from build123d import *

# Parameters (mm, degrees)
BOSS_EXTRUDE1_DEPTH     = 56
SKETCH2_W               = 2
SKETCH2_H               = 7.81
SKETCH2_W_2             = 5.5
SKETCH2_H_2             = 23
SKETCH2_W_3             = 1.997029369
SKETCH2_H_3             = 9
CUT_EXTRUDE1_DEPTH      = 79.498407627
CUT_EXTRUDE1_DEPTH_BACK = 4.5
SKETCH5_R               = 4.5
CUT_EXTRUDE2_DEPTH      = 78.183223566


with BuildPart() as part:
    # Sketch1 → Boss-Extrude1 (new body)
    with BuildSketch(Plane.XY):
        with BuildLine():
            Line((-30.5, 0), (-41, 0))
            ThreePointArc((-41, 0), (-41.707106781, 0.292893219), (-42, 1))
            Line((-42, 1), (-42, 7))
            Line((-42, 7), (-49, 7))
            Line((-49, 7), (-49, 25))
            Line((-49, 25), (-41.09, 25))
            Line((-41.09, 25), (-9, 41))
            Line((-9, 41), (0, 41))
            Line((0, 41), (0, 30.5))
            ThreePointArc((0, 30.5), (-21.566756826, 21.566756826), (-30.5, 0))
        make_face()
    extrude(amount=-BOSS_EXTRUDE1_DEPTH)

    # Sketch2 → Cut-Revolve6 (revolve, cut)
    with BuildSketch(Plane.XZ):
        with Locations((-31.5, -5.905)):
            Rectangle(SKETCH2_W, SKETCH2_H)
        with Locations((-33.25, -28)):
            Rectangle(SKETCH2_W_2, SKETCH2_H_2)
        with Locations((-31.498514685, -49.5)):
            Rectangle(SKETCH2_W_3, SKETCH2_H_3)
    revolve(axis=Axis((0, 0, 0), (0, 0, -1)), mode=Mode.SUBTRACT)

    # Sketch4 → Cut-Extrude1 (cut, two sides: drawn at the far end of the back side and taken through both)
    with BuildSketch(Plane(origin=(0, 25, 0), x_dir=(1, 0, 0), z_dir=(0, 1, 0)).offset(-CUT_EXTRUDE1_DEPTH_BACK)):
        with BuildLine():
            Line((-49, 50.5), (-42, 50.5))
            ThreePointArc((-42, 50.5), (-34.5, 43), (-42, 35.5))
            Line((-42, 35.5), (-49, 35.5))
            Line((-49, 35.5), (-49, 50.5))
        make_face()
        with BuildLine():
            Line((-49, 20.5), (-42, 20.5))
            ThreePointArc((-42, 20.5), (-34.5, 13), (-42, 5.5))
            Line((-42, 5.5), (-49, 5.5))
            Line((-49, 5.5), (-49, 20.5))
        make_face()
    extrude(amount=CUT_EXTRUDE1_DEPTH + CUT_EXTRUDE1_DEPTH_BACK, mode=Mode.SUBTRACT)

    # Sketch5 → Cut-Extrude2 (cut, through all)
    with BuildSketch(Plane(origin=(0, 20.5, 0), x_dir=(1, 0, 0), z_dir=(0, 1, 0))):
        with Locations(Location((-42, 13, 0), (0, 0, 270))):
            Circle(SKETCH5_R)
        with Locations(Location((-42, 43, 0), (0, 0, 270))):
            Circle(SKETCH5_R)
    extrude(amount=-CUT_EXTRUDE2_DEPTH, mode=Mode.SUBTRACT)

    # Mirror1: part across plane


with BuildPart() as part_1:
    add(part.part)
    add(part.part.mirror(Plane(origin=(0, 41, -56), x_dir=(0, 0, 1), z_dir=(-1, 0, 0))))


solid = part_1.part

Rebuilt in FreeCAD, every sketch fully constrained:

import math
import FreeCAD as App
import Part
import Sketcher
from FreeCAD import Vector


def add_polygon(sketch, points):
    """Adds a closed chain of lines whose ends are joined by coincident constraints."""
    first, n = sketch.GeometryCount, len(points)
    for a, b in zip(points, points[1:] + points[:1]):
        sketch.addGeometry(Part.LineSegment(App.Vector(*a, 0), App.Vector(*b, 0)), False)
    for i in range(n):
        sketch.addConstraint(Sketcher.Constraint("Coincident", first + i, 2, first + (i + 1) % n, 1))

doc = App.newDocument("Part")
body = doc.addObject("PartDesign::Body", "Body")

# Sketch on XY plane
sketch1 = doc.addObject("Sketcher::SketchObject", "Sketch")
body.addObject(sketch1)
sketch1.AttachmentSupport = (doc.XY_Plane, [""])
sketch1.MapMode = "FlatFace"
sketch1.addGeometry(Part.LineSegment(Vector(-41, 0, 0), Vector(-30.5, 0, 0)), False)
sketch1.addGeometry(Part.ArcOfCircle(Part.Circle(Vector(0, 0, 0), Vector(0, 0, 1), 30.5), math.radians(90), math.radians(180)), False)
sketch1.addGeometry(Part.LineSegment(Vector(0, 30.5, 0), Vector(0, 41, 0)), False)
sketch1.addGeometry(Part.LineSegment(Vector(0, 41, 0), Vector(-9, 41, 0)), False)
sketch1.addGeometry(Part.LineSegment(Vector(-9, 41, 0), Vector(-41.1, 25, 0)), False)
sketch1.addGeometry(Part.LineSegment(Vector(-41.1, 25, 0), Vector(-49, 25, 0)), False)
sketch1.addGeometry(Part.LineSegment(Vector(-49, 25, 0), Vector(-49, 7, 0)), False)
sketch1.addGeometry(Part.LineSegment(Vector(-49, 7, 0), Vector(-42, 7, 0)), False)
sketch1.addGeometry(Part.LineSegment(Vector(-42, 7, 0), Vector(-42, 1, 0)), False)
sketch1.addGeometry(Part.ArcOfCircle(Part.Circle(Vector(-41, 1, 0), Vector(0, 0, 1), 1), math.radians(-180), math.radians(-90)), False)
sketch1.addConstraint(Sketcher.Constraint("Coincident", 0, 2, 1, 2))
sketch1.addConstraint(Sketcher.Constraint("Coincident", 1, 1, 2, 1))
sketch1.addConstraint(Sketcher.Constraint("Coincident", 2, 2, 3, 1))
sketch1.addConstraint(Sketcher.Constraint("Coincident", 3, 2, 4, 1))
sketch1.addConstraint(Sketcher.Constraint("Coincident", 4, 2, 5, 1))
sketch1.addConstraint(Sketcher.Constraint("Coincident", 5, 2, 6, 1))
sketch1.addConstraint(Sketcher.Constraint("Coincident", 6, 2, 7, 1))
sketch1.addConstraint(Sketcher.Constraint("Coincident", 7, 2, 8, 1))
sketch1.addConstraint(Sketcher.Constraint("Tangent", 8, 2, 9, 1))
sketch1.addConstraint(Sketcher.Constraint("Tangent", 9, 2, 0, 1))
sketch1.addConstraint(Sketcher.Constraint("Horizontal", 0))
sketch1.addConstraint(Sketcher.Constraint("Vertical", 2))
sketch1.addConstraint(Sketcher.Constraint("Horizontal", 3))
sketch1.addConstraint(Sketcher.Constraint("Horizontal", 5))
sketch1.addConstraint(Sketcher.Constraint("Vertical", 6))
sketch1.addConstraint(Sketcher.Constraint("Horizontal", 7))
sketch1.addConstraint(Sketcher.Constraint("Vertical", 8))
sketch1.addConstraint(Sketcher.Constraint("Coincident", 1, 3, -1, 1))
sketch1.addConstraint(Sketcher.Constraint("PointOnObject", 0, 2, -1))
sketch1.addConstraint(Sketcher.Constraint("PointOnObject", 1, 1, -2))
sketch1.addConstraint(Sketcher.Constraint("Equal", 0, 2))
sketch1.addConstraint(Sketcher.Constraint("Radius", 9, 1.0))
sketch1.addConstraint(Sketcher.Constraint("Radius", 1, 30.5))
sketch1.addConstraint(Sketcher.Constraint("DistanceX", 3, 2, 3, 1, 9.0))
sketch1.addConstraint(Sketcher.Constraint("DistanceX", 7, 1, 7, 2, 7.0))
sketch1.addConstraint(Sketcher.Constraint("DistanceY", 6, 2, 6, 1, 18.0))
sketch1.addConstraint(Sketcher.Constraint("DistanceY", 8, 2, 8, 1, 6.0))
sketch1.addConstraint(Sketcher.Constraint("DistanceX", 0, 1, 0, 2, 10.5))
sketch1.addConstraint(Sketcher.Constraint("DistanceX", 5, 2, 5, 1, 7.91))
pad1 = doc.addObject("PartDesign::Pad", "Pad")
body.addObject(pad1)
pad1.Profile = sketch1
pad1.Length = 56
pad1.Reversed = True

# Sketch on XZ plane
sketch2 = doc.addObject("Sketcher::SketchObject", "Sketch001")
body.addObject(sketch2)
sketch2.AttachmentSupport = (doc.XZ_Plane, [""])
sketch2.MapMode = "FlatFace"
add_polygon(sketch2, [(-32.5, -2), (-32.5, -9.8), (-30.5, -9.8), (-30.5, -2)])  # lines 0-3
add_polygon(sketch2, [(-36, -16.5), (-36, -39.5), (-30.5, -39.5), (-30.5, -16.5)])  # lines 4-7
add_polygon(sketch2, [(-32.5, -45), (-32.5, -54), (-30.5, -54), (-30.5, -45)])  # lines 8-11
sketch2.addConstraint(Sketcher.Constraint("Vertical", 0))
sketch2.addConstraint(Sketcher.Constraint("Horizontal", 1))
sketch2.addConstraint(Sketcher.Constraint("Vertical", 2))
sketch2.addConstraint(Sketcher.Constraint("Horizontal", 3))
sketch2.addConstraint(Sketcher.Constraint("Vertical", 4))
sketch2.addConstraint(Sketcher.Constraint("Horizontal", 5))
sketch2.addConstraint(Sketcher.Constraint("Vertical", 6))
sketch2.addConstraint(Sketcher.Constraint("Horizontal", 7))
sketch2.addConstraint(Sketcher.Constraint("Vertical", 8))
sketch2.addConstraint(Sketcher.Constraint("Horizontal", 9))
sketch2.addConstraint(Sketcher.Constraint("Vertical", 10))
sketch2.addConstraint(Sketcher.Constraint("Horizontal", 11))
sketch2.addConstraint(Sketcher.Constraint("Vertical", 2, 2, 5, 2))
sketch2.addConstraint(Sketcher.Constraint("Vertical", 6, 2, 9, 2))
sketch2.addConstraint(Sketcher.Constraint("DistanceX", 1, 1, 1, 2, 2.0))
sketch2.addConstraint(Sketcher.Constraint("DistanceY", 4, 2, 4, 1, 23.0))
sketch2.addConstraint(Sketcher.Constraint("DistanceY", 8, 2, 8, 1, 9.0))
sketch2.addConstraint(Sketcher.Constraint("DistanceX", 5, 1, 5, 2, 5.5))
sketch2.addConstraint(Sketcher.Constraint("DistanceY", 2, 2, -1, 1, 2.0))
sketch2.addConstraint(Sketcher.Constraint("DistanceX", 4, 2, -1, 1, 36.0))
sketch2.addConstraint(Sketcher.Constraint("DistanceY", 8, 2, -1, 1, 54.0))
sketch2.addConstraint(Sketcher.Constraint("DistanceY", 0, 2, 0, 1, 7.81))
sketch2.addConstraint(Sketcher.Constraint("DistanceY", 4, 2, -1, 1, 39.5))
sketch2.addConstraint(Sketcher.Constraint("DistanceX", 9, 1, 9, 2, 1.997029))
groove = doc.addObject("PartDesign::Groove", "Groove")
body.addObject(groove)
groove.Profile = sketch2
groove.ReferenceAxis = (sketch2, ["V_Axis"])
groove.Angle = 360

# Sketch on XZ plane
sketch3 = doc.addObject("Sketcher::SketchObject", "Sketch002")
body.addObject(sketch3)
sketch3.AttachmentSupport = (doc.XZ_Plane, [""])
sketch3.MapMode = "FlatFace"
sketch3.AttachmentOffset = App.Placement(Vector(0, 0, -25), App.Rotation())
sketch3.addGeometry(Part.LineSegment(Vector(-42, -50, 0), Vector(-49, -50, 0)), False)
sketch3.addGeometry(Part.LineSegment(Vector(-49, -50, 0), Vector(-49, -36, 0)), False)
sketch3.addGeometry(Part.LineSegment(Vector(-49, -36, 0), Vector(-42, -36, 0)), False)
sketch3.addGeometry(Part.ArcOfCircle(Part.Circle(Vector(-42, -43, 0), Vector(0, 0, 1), 8), math.radians(-90), math.radians(90)), False)
sketch3.addGeometry(Part.LineSegment(Vector(-42, -20, 0), Vector(-49, -20, 0)), False)
sketch3.addGeometry(Part.LineSegment(Vector(-49, -20, 0), Vector(-49, -6, 0)), False)
sketch3.addGeometry(Part.LineSegment(Vector(-49, -6, 0), Vector(-42, -6, 0)), False)
sketch3.addGeometry(Part.ArcOfCircle(Part.Circle(Vector(-42, -13, 0), Vector(0, 0, 1), 8), math.radians(-90), math.radians(90)), False)
sketch3.addConstraint(Sketcher.Constraint("Coincident", 0, 2, 1, 1))
sketch3.addConstraint(Sketcher.Constraint("Coincident", 1, 2, 2, 1))
sketch3.addConstraint(Sketcher.Constraint("Tangent", 2, 2, 3, 2))
sketch3.addConstraint(Sketcher.Constraint("Tangent", 3, 1, 0, 1))
sketch3.addConstraint(Sketcher.Constraint("Coincident", 4, 2, 5, 1))
sketch3.addConstraint(Sketcher.Constraint("Coincident", 5, 2, 6, 1))
sketch3.addConstraint(Sketcher.Constraint("Tangent", 6, 2, 7, 2))
sketch3.addConstraint(Sketcher.Constraint("Tangent", 7, 1, 4, 1))
sketch3.addConstraint(Sketcher.Constraint("Horizontal", 0))
sketch3.addConstraint(Sketcher.Constraint("Vertical", 1))
sketch3.addConstraint(Sketcher.Constraint("Horizontal", 2))
sketch3.addConstraint(Sketcher.Constraint("Horizontal", 4))
sketch3.addConstraint(Sketcher.Constraint("Vertical", 5))
sketch3.addConstraint(Sketcher.Constraint("Horizontal", 6))
sketch3.addConstraint(Sketcher.Constraint("Equal", 3, 7))
sketch3.addConstraint(Sketcher.Constraint("Vertical", 3, 3, 7, 3))
sketch3.addConstraint(Sketcher.Constraint("Vertical", 1, 2, 4, 2))
sketch3.addConstraint(Sketcher.Constraint("Radius", 3, 7.5))
sketch3.addConstraint(Sketcher.Constraint("DistanceX", 0, 2, 0, 1, 7.0))
sketch3.addConstraint(Sketcher.Constraint("DistanceX", 3, 3, -1, 1, 42.0))
sketch3.addConstraint(Sketcher.Constraint("DistanceY", 3, 3, -1, 1, 43.0))
sketch3.addConstraint(Sketcher.Constraint("DistanceY", 7, 3, -1, 1, 13.0))
pocket1 = doc.addObject("PartDesign::Pocket", "Pocket")
body.addObject(pocket1)
pocket1.Profile = sketch3
pocket1.Type = "TwoLengths"
pocket1.Length = 79.498408
pocket1.Length2 = 4.5

# Sketch on XZ plane
sketch4 = doc.addObject("Sketcher::SketchObject", "Sketch003")
body.addObject(sketch4)
sketch4.AttachmentSupport = (doc.XZ_Plane, [""])
sketch4.MapMode = "FlatFace"
sketch4.AttachmentOffset = App.Placement(Vector(0, 0, -20.5), App.Rotation())
sketch4.addGeometry(Part.Circle(Vector(-42, -13, 0), Vector(0, 0, 1), 4.5), False)
sketch4.addGeometry(Part.Circle(Vector(-42, -43, 0), Vector(0, 0, 1), 4.5), False)
sketch4.addConstraint(Sketcher.Constraint("Equal", 0, 1))
sketch4.addConstraint(Sketcher.Constraint("Vertical", 0, 3, 1, 3))
sketch4.addConstraint(Sketcher.Constraint("Diameter", 0, 9.0))
sketch4.addConstraint(Sketcher.Constraint("DistanceX", 0, 3, -1, 1, 42.0))
sketch4.addConstraint(Sketcher.Constraint("DistanceY", 0, 3, -1, 1, 13.0))
sketch4.addConstraint(Sketcher.Constraint("DistanceY", 1, 3, -1, 1, 43.0))
pocket2 = doc.addObject("PartDesign::Pocket", "Pocket001")
body.addObject(pocket2)
pocket2.Profile = sketch4
pocket2.Type = "ThroughAll"
pocket2.Reversed = True
body2 = doc.addObject("PartDesign::Body", "Body001")
doc.recompute()

body2.BaseFeature = body
doc.recompute()

mirroring = doc.addObject("Part::Mirroring", "Mirroring")
mirroring.Source = body
mirroring.Base = Vector(0, 41, -56)
mirroring.Normal = Vector(-1, 0, 0)
body3 = doc.addObject("PartDesign::Body", "Body002")
body3.BaseFeature = mirroring
boolean = doc.addObject("PartDesign::Boolean", "Boolean")
body2.addObject(boolean)
boolean.Type = "Fuse"
boolean.addObjects([body3])
doc.recompute()
mirroring.Visibility = False

doc.recompute()
